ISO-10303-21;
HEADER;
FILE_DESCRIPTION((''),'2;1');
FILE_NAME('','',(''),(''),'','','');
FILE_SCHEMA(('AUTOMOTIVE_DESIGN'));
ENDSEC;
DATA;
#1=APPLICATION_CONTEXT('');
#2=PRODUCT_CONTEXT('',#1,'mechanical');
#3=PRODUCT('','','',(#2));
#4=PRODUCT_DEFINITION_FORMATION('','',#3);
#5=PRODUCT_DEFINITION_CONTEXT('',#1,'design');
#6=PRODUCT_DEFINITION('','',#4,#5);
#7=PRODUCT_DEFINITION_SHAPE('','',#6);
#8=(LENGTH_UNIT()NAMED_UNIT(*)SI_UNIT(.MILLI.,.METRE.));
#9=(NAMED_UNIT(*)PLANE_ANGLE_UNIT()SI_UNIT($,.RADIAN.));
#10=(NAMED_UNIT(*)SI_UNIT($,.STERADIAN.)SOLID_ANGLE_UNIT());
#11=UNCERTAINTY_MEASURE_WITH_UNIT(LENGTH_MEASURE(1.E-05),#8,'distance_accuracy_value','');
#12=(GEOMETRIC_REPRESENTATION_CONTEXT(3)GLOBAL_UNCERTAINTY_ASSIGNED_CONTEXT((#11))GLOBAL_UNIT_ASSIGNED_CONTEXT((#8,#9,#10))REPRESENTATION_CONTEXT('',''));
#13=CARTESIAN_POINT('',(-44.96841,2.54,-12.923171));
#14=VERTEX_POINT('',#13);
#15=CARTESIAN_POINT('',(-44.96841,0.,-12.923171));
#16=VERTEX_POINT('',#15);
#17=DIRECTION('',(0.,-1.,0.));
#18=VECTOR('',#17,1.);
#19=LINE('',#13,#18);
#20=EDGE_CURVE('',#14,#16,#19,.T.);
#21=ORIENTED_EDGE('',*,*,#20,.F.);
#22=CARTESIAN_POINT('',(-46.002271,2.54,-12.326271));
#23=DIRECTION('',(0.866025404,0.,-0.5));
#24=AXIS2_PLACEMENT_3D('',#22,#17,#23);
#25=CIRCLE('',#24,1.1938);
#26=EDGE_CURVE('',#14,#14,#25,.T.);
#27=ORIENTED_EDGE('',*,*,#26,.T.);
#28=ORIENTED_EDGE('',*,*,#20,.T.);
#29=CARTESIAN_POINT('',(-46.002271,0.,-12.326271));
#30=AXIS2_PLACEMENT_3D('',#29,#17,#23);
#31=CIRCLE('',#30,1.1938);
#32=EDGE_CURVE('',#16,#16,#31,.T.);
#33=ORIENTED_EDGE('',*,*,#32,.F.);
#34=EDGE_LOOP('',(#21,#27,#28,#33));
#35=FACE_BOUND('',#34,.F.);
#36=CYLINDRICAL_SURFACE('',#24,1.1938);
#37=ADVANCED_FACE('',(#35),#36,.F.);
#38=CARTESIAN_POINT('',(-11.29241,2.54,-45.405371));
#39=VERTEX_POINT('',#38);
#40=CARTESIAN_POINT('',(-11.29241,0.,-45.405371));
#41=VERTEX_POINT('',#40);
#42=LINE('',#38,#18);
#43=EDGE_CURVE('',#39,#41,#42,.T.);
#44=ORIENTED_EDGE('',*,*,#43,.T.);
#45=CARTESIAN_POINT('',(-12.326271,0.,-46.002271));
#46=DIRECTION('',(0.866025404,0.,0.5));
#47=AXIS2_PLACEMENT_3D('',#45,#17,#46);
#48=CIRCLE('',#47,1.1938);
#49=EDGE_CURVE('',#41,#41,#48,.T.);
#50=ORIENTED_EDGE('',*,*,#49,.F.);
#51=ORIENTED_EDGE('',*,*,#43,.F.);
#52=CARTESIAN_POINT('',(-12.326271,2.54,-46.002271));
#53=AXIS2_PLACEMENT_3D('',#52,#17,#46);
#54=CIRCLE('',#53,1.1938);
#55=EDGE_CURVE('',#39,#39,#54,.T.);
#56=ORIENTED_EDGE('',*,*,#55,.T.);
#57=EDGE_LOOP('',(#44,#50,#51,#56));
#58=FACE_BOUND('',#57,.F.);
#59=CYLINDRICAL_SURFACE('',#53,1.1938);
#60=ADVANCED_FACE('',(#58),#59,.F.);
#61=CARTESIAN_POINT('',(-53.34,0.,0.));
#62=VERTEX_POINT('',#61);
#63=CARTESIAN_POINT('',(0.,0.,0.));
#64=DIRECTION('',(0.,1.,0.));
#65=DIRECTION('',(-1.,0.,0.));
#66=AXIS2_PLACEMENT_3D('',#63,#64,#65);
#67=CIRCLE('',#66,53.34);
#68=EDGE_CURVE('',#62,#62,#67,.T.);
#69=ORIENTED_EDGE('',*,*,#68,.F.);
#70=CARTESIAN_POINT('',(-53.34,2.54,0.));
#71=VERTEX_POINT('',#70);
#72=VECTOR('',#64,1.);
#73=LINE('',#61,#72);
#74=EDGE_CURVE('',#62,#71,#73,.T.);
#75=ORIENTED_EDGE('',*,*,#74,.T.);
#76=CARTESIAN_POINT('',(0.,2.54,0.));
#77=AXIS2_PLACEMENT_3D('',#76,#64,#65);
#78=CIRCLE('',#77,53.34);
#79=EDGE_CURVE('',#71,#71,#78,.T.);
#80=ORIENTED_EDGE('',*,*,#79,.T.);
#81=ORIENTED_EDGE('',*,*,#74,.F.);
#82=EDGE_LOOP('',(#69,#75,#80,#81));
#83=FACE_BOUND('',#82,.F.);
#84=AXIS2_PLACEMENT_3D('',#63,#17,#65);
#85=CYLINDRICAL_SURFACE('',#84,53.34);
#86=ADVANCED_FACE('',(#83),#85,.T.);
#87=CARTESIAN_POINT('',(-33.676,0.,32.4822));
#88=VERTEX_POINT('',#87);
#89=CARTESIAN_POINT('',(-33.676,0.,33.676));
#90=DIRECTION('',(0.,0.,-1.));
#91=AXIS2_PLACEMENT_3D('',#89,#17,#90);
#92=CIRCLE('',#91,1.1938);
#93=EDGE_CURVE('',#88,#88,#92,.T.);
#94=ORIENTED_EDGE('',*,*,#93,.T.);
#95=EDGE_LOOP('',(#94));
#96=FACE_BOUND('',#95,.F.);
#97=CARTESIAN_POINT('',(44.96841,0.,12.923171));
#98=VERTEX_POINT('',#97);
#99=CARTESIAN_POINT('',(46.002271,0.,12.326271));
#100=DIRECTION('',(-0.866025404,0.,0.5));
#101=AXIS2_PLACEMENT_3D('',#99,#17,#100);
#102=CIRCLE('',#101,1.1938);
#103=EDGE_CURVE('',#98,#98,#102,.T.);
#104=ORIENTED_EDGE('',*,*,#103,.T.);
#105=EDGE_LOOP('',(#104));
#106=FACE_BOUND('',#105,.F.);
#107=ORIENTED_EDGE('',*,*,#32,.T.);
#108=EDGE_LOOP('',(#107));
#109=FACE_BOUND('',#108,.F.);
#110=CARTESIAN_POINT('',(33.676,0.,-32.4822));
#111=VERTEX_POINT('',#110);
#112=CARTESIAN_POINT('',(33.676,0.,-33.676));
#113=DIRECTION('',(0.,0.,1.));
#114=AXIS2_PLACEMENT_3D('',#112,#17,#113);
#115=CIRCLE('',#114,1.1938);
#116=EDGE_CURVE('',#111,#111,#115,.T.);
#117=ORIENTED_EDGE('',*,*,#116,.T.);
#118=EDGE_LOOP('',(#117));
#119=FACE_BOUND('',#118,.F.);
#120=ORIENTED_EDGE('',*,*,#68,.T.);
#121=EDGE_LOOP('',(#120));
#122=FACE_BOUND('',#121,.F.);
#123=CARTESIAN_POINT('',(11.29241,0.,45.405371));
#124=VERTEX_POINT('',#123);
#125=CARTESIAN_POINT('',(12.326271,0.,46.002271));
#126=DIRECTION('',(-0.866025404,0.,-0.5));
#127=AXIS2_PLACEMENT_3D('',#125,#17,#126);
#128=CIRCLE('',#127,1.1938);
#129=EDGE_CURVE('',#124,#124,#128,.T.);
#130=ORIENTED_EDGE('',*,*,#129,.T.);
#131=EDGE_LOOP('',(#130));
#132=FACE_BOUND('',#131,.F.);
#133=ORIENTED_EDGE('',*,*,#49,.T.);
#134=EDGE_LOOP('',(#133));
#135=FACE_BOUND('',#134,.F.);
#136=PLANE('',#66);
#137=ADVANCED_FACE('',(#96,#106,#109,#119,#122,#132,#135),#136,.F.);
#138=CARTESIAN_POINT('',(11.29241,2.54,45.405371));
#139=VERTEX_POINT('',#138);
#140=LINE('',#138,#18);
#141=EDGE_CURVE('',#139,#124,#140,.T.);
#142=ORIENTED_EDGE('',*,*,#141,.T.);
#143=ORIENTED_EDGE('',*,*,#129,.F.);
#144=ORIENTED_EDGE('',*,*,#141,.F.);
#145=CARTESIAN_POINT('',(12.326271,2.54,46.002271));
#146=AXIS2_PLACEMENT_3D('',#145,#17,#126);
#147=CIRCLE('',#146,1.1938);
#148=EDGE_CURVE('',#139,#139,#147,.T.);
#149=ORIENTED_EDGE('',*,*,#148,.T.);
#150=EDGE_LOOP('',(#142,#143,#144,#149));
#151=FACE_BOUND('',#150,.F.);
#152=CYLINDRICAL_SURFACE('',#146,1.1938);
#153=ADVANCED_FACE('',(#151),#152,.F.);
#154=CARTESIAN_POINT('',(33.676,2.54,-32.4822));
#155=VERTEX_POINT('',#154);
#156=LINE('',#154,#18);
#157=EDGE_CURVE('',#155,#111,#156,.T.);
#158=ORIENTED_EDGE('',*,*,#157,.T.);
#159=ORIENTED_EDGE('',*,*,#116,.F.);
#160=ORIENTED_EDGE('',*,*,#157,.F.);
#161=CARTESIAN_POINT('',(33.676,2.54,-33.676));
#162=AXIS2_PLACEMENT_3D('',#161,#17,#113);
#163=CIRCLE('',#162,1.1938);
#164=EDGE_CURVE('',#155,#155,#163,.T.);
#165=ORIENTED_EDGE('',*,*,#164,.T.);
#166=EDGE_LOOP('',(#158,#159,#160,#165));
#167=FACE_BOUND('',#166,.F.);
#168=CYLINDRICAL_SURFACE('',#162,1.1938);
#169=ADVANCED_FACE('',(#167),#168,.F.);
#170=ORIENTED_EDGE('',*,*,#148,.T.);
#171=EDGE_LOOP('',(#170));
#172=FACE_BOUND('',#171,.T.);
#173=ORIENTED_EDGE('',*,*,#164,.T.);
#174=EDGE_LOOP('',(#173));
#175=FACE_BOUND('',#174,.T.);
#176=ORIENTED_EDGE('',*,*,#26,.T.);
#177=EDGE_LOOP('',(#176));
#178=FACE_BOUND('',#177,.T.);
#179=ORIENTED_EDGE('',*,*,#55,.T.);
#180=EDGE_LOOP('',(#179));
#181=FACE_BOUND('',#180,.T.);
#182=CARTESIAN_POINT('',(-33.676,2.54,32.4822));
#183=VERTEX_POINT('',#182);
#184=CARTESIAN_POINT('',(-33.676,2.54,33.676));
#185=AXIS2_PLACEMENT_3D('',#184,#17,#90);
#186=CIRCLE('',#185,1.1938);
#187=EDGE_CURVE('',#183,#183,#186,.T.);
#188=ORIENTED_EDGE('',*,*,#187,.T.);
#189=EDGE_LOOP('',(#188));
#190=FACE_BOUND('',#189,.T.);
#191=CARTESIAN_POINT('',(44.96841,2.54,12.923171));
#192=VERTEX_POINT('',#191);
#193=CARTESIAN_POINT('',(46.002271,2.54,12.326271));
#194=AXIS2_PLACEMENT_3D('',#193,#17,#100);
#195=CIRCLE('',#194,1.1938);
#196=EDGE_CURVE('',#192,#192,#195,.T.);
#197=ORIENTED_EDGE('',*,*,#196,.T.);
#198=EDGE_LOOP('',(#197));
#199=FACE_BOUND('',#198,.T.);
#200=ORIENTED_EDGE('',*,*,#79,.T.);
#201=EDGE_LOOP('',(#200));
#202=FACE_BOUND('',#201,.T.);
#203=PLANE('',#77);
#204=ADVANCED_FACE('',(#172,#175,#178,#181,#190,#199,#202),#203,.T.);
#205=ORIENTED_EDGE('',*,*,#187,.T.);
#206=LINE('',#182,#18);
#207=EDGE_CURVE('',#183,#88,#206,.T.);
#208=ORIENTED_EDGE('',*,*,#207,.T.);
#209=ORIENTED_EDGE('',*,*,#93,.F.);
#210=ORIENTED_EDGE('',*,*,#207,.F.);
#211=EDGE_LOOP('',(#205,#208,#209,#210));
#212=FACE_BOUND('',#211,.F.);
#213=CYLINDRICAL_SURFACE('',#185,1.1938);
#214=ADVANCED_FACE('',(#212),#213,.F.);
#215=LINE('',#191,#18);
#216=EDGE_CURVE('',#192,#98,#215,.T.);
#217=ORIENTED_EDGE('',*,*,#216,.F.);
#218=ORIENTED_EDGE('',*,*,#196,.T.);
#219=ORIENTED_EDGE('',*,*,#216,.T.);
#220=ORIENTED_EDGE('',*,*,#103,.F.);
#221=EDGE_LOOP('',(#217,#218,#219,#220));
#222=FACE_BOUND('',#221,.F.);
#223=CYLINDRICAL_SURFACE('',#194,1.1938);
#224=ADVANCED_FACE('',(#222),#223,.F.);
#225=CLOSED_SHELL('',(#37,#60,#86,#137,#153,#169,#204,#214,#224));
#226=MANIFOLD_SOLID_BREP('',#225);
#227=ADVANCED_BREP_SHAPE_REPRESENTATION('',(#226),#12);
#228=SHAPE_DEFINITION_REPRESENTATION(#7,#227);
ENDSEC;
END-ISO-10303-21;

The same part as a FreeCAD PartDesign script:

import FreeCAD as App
import Part
import Sketcher
Q = App.Units.Quantity

doc = App.newDocument("Part")
body = doc.addObject("PartDesign::Body", "Body")

sketch1 = body.newObject("Sketcher::SketchObject", "Sketch")
sketch1.AttachmentSupport = (doc.getObject("XZ_Plane"), [""])
sketch1.MapMode = "FlatFace"
sketch1.addGeometry(Part.Circle(App.Vector(0, 0, 0), App.Vector(0, 0, 1), 53.34), False)
sketch1.addConstraint([
    Sketcher.Constraint("Coincident", 0, 3, -1, 1),
    Sketcher.Constraint("Diameter", 0, Q("4.2 in")),
])
pad1 = body.newObject("PartDesign::Pad", "Pad")
pad1.Profile = sketch1
pad1.Length = Q("0.1 in")
pad1.Reversed = True

sketch2 = body.newObject("Sketcher::SketchObject", "Sketch001")
sketch2.AttachmentSupport = (doc.getObject("XZ_Plane"), [""])
sketch2.MapMode = "FlatFace"
sketch2.AttachmentOffset = App.Placement(App.Vector(0, 0, -0.1 * 25.4), App.Rotation())
sketch2.addGeometry(Part.Circle(App.Vector(33.676, -33.676, 0), App.Vector(0, 0, 1), 1.1938), False)
sketch2.addConstraint([
    Sketcher.Constraint("Diameter", 0, Q("0.094 in")),
    Sketcher.Constraint("DistanceX", -1, 1, 0, 3, Q("33.676 mm")),
    Sketcher.Constraint("DistanceY", 0, 3, -1, 1, Q("33.676 mm")),
])
doc.recompute()
hole = body.newObject("PartDesign::Hole", "Hole")
hole.Profile = sketch2
hole.ThreadType = "None"
hole.Diameter = Q("0.094 in")
hole.DepthType = "ThroughAll"
hole.Reversed = True
doc.recompute()

polarpattern = body.newObject("PartDesign::PolarPattern", "PolarPattern")
polarpattern.Originals = [hole]
polarpattern.Axis = (doc.getObject("Y_Axis"), [""])
polarpattern.Angle = 360
polarpattern.Occurrences = 6
body.Tip = polarpattern

doc.recompute()
